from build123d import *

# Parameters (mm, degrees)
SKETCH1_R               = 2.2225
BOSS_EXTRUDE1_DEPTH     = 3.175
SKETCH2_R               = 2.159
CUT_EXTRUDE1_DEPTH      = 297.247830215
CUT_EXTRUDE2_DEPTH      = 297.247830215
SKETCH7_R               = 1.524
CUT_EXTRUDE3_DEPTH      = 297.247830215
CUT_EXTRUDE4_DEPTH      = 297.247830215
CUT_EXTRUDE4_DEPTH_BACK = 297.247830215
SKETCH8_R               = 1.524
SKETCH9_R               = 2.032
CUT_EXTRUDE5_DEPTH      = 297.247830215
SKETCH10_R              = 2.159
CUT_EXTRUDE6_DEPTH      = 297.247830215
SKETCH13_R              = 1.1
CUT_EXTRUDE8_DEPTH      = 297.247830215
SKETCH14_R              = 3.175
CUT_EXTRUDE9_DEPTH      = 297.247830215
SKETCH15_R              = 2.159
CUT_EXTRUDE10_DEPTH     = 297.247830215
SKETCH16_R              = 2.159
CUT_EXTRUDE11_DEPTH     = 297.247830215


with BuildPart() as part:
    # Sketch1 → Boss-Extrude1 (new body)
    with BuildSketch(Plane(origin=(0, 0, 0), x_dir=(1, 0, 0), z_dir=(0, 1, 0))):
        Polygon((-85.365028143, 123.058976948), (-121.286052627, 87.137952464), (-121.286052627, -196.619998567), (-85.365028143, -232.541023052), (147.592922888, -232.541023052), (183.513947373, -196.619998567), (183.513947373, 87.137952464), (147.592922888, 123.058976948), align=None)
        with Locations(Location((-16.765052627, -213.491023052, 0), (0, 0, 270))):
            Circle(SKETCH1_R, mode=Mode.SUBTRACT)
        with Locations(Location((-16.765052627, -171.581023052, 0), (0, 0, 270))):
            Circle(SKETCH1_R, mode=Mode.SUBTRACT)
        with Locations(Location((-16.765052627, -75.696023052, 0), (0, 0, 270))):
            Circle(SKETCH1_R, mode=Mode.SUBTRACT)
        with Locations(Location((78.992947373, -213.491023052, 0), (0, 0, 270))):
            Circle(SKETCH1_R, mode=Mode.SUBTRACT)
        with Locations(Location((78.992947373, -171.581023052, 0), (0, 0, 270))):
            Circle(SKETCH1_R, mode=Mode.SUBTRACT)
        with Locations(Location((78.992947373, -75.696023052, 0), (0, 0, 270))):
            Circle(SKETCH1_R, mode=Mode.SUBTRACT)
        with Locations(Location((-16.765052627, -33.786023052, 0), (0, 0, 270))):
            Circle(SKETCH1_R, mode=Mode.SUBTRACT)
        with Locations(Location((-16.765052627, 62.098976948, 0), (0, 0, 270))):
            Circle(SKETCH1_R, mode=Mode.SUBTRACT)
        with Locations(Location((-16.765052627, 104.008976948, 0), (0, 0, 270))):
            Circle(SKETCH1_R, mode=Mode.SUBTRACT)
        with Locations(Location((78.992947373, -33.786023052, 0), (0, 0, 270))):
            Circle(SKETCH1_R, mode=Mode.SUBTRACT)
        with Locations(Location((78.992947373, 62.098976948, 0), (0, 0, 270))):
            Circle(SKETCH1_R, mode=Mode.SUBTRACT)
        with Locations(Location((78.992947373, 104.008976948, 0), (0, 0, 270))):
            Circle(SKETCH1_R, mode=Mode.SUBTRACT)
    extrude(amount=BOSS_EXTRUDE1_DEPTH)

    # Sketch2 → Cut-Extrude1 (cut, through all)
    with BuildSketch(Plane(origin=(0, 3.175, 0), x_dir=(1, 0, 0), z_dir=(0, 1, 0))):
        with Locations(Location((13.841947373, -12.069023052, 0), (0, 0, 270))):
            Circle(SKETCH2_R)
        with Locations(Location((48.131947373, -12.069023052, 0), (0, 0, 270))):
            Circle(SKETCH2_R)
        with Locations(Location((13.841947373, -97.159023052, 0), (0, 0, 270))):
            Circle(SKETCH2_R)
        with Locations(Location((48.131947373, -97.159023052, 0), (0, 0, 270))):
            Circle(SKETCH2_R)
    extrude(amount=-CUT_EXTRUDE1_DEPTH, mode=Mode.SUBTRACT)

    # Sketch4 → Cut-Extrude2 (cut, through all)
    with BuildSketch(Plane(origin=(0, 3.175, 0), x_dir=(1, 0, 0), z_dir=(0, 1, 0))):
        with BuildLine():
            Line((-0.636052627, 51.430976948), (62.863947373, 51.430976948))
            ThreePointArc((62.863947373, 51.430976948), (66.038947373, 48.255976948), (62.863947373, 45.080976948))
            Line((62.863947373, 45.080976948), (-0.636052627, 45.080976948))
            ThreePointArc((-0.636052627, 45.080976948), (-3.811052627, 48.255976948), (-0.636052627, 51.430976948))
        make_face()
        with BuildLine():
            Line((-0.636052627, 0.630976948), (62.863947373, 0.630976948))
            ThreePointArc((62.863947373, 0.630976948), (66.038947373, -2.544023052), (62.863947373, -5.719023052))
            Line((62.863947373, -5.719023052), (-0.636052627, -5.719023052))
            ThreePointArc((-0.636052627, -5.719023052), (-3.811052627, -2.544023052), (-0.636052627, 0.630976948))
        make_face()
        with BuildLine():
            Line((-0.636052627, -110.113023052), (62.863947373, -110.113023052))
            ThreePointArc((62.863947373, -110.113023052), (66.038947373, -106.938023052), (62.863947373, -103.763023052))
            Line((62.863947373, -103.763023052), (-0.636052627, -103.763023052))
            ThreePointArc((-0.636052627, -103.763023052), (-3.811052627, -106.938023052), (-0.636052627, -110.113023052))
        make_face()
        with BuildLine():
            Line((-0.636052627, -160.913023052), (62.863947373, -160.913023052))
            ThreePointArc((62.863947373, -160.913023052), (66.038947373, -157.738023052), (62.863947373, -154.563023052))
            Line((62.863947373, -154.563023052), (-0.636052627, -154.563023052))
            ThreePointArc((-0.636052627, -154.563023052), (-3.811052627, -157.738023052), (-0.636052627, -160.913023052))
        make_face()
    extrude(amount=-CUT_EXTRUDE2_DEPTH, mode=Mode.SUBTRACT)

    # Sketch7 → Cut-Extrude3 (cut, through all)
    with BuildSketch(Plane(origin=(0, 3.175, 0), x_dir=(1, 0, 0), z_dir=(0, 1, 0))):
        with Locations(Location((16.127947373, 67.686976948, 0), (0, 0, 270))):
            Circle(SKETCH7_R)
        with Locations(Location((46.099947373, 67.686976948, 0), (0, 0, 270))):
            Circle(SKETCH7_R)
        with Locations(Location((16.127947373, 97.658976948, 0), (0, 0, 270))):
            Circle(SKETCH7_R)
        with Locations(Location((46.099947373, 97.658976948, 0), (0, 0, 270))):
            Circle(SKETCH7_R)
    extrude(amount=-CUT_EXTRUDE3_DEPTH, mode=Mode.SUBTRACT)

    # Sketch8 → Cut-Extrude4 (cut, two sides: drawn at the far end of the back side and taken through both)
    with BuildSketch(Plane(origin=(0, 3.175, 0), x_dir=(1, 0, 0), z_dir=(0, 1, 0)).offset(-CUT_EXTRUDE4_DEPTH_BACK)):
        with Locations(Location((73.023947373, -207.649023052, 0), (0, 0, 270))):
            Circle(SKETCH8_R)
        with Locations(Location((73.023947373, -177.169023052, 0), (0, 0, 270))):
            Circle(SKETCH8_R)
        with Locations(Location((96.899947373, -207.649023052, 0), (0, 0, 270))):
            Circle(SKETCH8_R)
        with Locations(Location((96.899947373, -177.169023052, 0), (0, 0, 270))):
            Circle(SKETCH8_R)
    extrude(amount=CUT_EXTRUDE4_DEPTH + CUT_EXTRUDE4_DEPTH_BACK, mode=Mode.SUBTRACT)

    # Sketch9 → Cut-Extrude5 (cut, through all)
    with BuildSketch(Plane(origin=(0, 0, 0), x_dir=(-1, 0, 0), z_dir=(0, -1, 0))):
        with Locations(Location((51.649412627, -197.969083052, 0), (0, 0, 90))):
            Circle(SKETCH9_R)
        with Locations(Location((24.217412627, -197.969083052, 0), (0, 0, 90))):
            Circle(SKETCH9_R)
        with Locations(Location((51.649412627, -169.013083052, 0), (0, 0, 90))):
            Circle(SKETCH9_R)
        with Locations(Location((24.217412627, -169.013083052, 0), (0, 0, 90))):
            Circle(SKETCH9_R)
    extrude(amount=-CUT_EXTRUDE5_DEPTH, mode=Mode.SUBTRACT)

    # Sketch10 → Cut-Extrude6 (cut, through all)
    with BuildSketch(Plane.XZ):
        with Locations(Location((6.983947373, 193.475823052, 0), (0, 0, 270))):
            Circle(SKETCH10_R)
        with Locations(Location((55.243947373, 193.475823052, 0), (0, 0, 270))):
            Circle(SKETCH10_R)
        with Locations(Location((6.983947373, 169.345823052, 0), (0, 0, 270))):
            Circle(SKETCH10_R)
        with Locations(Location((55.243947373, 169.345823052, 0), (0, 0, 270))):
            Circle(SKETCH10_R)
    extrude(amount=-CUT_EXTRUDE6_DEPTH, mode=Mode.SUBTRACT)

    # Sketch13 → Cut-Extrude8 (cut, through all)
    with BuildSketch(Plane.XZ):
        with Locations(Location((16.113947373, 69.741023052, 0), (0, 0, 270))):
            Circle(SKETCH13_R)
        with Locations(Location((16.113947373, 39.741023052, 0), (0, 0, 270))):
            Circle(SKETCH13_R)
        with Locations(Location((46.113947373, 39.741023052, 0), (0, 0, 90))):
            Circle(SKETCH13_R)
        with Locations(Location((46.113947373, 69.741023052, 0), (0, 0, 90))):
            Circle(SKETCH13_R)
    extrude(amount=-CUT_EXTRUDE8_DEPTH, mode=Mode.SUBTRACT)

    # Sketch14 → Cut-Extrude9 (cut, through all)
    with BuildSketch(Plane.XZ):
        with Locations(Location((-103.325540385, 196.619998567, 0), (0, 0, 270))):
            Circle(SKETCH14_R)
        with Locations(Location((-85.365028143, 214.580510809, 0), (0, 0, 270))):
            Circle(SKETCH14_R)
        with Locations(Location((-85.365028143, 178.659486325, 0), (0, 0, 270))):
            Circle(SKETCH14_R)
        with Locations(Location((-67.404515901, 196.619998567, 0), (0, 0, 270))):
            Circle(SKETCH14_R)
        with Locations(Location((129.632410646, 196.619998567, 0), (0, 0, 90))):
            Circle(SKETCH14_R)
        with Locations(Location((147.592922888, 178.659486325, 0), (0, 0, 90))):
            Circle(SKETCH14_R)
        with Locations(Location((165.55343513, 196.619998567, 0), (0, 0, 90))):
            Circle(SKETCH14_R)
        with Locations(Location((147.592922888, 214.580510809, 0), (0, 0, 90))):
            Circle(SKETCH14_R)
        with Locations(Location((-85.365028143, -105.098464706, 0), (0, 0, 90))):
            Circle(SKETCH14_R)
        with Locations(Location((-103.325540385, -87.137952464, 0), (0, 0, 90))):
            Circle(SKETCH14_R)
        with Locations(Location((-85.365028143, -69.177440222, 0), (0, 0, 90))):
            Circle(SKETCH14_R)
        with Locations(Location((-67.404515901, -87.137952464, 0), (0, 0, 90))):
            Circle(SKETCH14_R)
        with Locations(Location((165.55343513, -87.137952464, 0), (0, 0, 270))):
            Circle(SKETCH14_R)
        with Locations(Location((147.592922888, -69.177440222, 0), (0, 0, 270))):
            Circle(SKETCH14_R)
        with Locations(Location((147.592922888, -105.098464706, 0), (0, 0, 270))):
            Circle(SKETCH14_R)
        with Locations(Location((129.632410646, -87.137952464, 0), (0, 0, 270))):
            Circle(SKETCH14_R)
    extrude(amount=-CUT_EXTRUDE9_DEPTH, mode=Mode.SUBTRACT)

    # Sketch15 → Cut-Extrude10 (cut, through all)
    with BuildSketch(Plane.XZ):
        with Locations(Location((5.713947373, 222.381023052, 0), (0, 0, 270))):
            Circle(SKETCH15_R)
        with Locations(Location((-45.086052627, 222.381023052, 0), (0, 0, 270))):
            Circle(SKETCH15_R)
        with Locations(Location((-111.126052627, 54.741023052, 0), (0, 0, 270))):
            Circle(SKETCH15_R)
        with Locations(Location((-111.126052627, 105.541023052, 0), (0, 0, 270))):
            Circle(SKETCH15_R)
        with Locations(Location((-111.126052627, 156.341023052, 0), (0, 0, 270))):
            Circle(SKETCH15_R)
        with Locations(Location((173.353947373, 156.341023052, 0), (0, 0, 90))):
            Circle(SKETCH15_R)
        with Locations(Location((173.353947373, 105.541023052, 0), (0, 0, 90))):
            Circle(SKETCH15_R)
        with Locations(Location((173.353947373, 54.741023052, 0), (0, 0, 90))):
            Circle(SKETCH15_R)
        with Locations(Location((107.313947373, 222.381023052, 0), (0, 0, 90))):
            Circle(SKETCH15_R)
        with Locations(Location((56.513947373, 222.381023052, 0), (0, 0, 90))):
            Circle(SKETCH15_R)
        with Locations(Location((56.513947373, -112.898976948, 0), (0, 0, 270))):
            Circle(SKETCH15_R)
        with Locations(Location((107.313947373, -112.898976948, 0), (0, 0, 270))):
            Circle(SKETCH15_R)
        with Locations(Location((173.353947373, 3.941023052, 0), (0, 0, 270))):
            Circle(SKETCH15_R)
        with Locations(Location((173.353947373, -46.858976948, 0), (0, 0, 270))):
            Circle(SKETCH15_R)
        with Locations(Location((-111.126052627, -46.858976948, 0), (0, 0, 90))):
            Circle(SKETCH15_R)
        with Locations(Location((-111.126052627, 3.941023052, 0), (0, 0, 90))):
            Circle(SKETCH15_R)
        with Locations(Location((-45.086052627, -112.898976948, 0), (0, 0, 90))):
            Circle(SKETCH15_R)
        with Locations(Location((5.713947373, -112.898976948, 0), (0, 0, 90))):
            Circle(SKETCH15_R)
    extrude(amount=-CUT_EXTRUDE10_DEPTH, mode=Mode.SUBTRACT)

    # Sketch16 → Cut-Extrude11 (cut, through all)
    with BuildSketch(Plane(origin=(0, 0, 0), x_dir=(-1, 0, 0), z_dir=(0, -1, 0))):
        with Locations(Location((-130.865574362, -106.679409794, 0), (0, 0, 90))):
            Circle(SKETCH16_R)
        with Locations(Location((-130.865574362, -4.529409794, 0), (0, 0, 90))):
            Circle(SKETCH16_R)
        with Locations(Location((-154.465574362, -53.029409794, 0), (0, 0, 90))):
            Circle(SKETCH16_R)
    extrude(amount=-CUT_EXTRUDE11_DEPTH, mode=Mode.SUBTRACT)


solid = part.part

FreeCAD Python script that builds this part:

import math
import FreeCAD as App
import Part
import Sketcher
from FreeCAD import Vector
Q = App.Units.Quantity


def add_polygon(sketch, points):
    """Adds a closed chain of lines whose ends are joined by coincident constraints."""
    first, n = sketch.GeometryCount, len(points)
    for a, b in zip(points, points[1:] + points[:1]):
        sketch.addGeometry(Part.LineSegment(App.Vector(*a, 0), App.Vector(*b, 0)), False)
    for i in range(n):
        sketch.addConstraint(Sketcher.Constraint("Coincident", first + i, 2, first + (i + 1) % n, 1))

doc = App.newDocument("Part")
params = doc.addObject("Spreadsheet::Sheet", "Params")
for row, (alias, value) in enumerate([
    ("sketch1_length", "2 in"),
    ("sketch1_diameter", "0.175 in"),
    ("pad1_length", "0.125 in"),
    ("sketch2_diameter", "0.17 in"),
    ("sketch3_width", "2.5 in"),
    ("sketch3_radius", "0.125 in"),
    ("sketch4_diameter", "0.12 in"),
    ("sketch5_diameter", "0.12 in"),
    ("sketch6_diameter", "0.16 in"),
    ("sketch7_diameter", "0.17 in"),
    ("sketch9_diameter", "0.25 in"),
    ("sketch10_diameter", "0.17 in"),
    ("sketch11_diameter", "0.17 in"),
], start=1):
    params.set(f"A{row}", alias)
    params.set(f"B{row}", "=" + value)
    params.setAlias(f"B{row}", alias)

body = doc.addObject("PartDesign::Body", "Body")

# Sketch on XZ plane
sketch1 = doc.addObject("Sketcher::SketchObject", "Sketch")
body.addObject(sketch1)
sketch1.AttachmentSupport = (doc.XZ_Plane, [""])
sketch1.MapMode = "FlatFace"
add_polygon(sketch1, [(-85.4, -123.1), (-121.3, -87.1), (-121.3, 196.6), (-85.4, 232.5), (147.6, 232.5), (183.5, 196.6), (183.5, -87.1), (147.6, -123.1)])  # lines 0-7
sketch1.addGeometry(Part.Circle(Vector(-16.8, 213.5, 0), Vector(0, 0, 1), 2.2), False)  # 8
sketch1.addGeometry(Part.Circle(Vector(-16.8, 171.6, 0), Vector(0, 0, 1), 2.2), False)  # 9
sketch1.addGeometry(Part.Circle(Vector(-16.8, 75.7, 0), Vector(0, 0, 1), 2.2), False)  # 10
sketch1.addGeometry(Part.Circle(Vector(79, 213.5, 0), Vector(0, 0, 1), 2.2), False)  # 11
sketch1.addGeometry(Part.Circle(Vector(79, 171.6, 0), Vector(0, 0, 1), 2.2), False)  # 12
sketch1.addGeometry(Part.Circle(Vector(79, 75.7, 0), Vector(0, 0, 1), 2.2), False)  # 13
sketch1.addGeometry(Part.Circle(Vector(-16.8, 33.8, 0), Vector(0, 0, 1), 2.2), False)  # 14
sketch1.addGeometry(Part.Circle(Vector(-16.8, -62.1, 0), Vector(0, 0, 1), 2.2), False)  # 15
sketch1.addGeometry(Part.Circle(Vector(-16.8, -104, 0), Vector(0, 0, 1), 2.2), False)  # 16
sketch1.addGeometry(Part.Circle(Vector(79, 33.8, 0), Vector(0, 0, 1), 2.2), False)  # 17
sketch1.addGeometry(Part.Circle(Vector(79, -62.1, 0), Vector(0, 0, 1), 2.2), False)  # 18
sketch1.addGeometry(Part.Circle(Vector(79, -104, 0), Vector(0, 0, 1), 2.2), False)  # 19
sketch1.addConstraint([
    Sketcher.Constraint("Vertical", 1),
    Sketcher.Constraint("Horizontal", 3),
    Sketcher.Constraint("Vertical", 5),
    Sketcher.Constraint("Horizontal", 7),
    Sketcher.Constraint("Equal", 8, 9),
    Sketcher.Constraint("Equal", 9, 10),
    Sketcher.Constraint("Equal", 10, 11),
    Sketcher.Constraint("Equal", 11, 12),
    Sketcher.Constraint("Equal", 12, 13),
    Sketcher.Constraint("Equal", 13, 14),
    Sketcher.Constraint("Equal", 14, 15),
    Sketcher.Constraint("Equal", 15, 16),
    Sketcher.Constraint("Equal", 16, 17),
    Sketcher.Constraint("Equal", 17, 18),
    Sketcher.Constraint("Equal", 18, 19),
    Sketcher.Constraint("Perpendicular", 0, 2),
    Sketcher.Constraint("Perpendicular", 2, 4),
    Sketcher.Constraint("Perpendicular", 4, 6),
    Sketcher.Constraint("Horizontal", 8, 3, 11, 3),
    Sketcher.Constraint("Horizontal", 9, 3, 12, 3),
    Sketcher.Constraint("Horizontal", 10, 3, 13, 3),
    Sketcher.Constraint("Horizontal", 14, 3, 17, 3),
    Sketcher.Constraint("Horizontal", 15, 3, 18, 3),
    Sketcher.Constraint("Horizontal", 16, 3, 19, 3),
    Sketcher.Constraint("Horizontal", 1, 2, 4, 2),
    Sketcher.Constraint("Horizontal", 0, 2, 5, 2),
    Sketcher.Constraint("Vertical", 8, 3, 9, 3),
    Sketcher.Constraint("Vertical", 9, 3, 10, 3),
    Sketcher.Constraint("Vertical", 11, 3, 12, 3),
    Sketcher.Constraint("Vertical", 12, 3, 13, 3),
    Sketcher.Constraint("Vertical", 10, 3, 14, 3),
    Sketcher.Constraint("Vertical", 14, 3, 15, 3),
    Sketcher.Constraint("Vertical", 15, 3, 16, 3),
    Sketcher.Constraint("Vertical", 13, 3, 17, 3),
    Sketcher.Constraint("Vertical", 17, 3, 18, 3),
    Sketcher.Constraint("Vertical", 18, 3, 19, 3),
    Sketcher.Constraint("Vertical", 3, 2, 6, 2),
    Sketcher.Constraint("Vertical", 2, 2, 7, 2),
    Sketcher.Constraint("Distance", 0, Q("2 in")),
    Sketcher.Constraint("Diameter", 8, Q("0.175 in")),
    Sketcher.Constraint("DistanceY", 15, 3, 9, 3, Q("9.2 in")),
    Sketcher.Constraint("DistanceY", 9, 3, 2, 2, Q("2.4 in")),
    Sketcher.Constraint("DistanceY", 6, 2, 18, 3, Q("2.4 in")),
    Sketcher.Constraint("DistanceY", 9, 3, 8, 3, Q("1.65 in")),
    Sketcher.Constraint("DistanceX", 8, 3, 11, 3, Q("3.77 in")),
    Sketcher.Constraint("DistanceY", 14, 3, 10, 3, Q("1.65 in")),
    Sketcher.Constraint("DistanceY", 16, 3, 15, 3, Q("1.65 in")),
    Sketcher.Constraint("DistanceY", 10, 3, 9, 3, Q("3.775 in")),
    Sketcher.Constraint("DistanceX", 0, 2, 16, 3, Q("4.115 in")),
    Sketcher.Constraint("DistanceX", 11, 3, 4, 2, Q("4.115 in")),
    Sketcher.Constraint("DistanceY", -1, 1, 1, 2, 196.619999),
    Sketcher.Constraint("DistanceX", 2, 2, -1, 1, 85.365028),
])
sketch1.setExpression("Constraints[46]", "Params.sketch1_length")
sketch1.setExpression("Constraints[47]", "Params.sketch1_diameter")
pad1 = doc.addObject("PartDesign::Pad", "Pad")
body.addObject(pad1)
pad1.Profile = sketch1
pad1.setExpression("Length", "Params.pad1_length")
pad1.Reversed = True

# Sketch on XZ plane
sketch2 = doc.addObject("Sketcher::SketchObject", "Sketch001")
body.addObject(sketch2)
sketch2.AttachmentSupport = (doc.XZ_Plane, [""])
sketch2.MapMode = "FlatFace"
sketch2.AttachmentOffset = App.Placement(Vector(0, 0, -0.125 * 25.4), App.Rotation())
sketch2.addGeometry([
    Part.Circle(Vector(13.8, 12.1, 0), Vector(0, 0, 1), 2.2),
    Part.Circle(Vector(48.1, 12.1, 0), Vector(0, 0, 1), 2.2),
    Part.Circle(Vector(13.8, 97.2, 0), Vector(0, 0, 1), 2.2),
    Part.Circle(Vector(48.1, 97.2, 0), Vector(0, 0, 1), 2.2),
], False)
sketch2.addConstraint([
    Sketcher.Constraint("Equal", 0, 1),
    Sketcher.Constraint("Equal", 1, 2),
    Sketcher.Constraint("Equal", 2, 3),
    Sketcher.Constraint("Horizontal", 0, 3, 1, 3),
    Sketcher.Constraint("Horizontal", 2, 3, 3, 3),
    Sketcher.Constraint("Vertical", 0, 3, 2, 3),
    Sketcher.Constraint("Vertical", 1, 3, 3, 3),
    Sketcher.Constraint("Diameter", 0, Q("0.17 in")),
    Sketcher.Constraint("DistanceX", 0, 3, 1, 3, Q("1.35 in")),
    Sketcher.Constraint("DistanceY", 0, 3, 2, 3, Q("3.35 in")),
    Sketcher.Constraint("DistanceX", -1, 1, 0, 3, 13.841947),
    Sketcher.Constraint("DistanceY", -1, 1, 0, 3, 12.069023),
])
sketch2.setExpression("Constraints[7]", "Params.sketch2_diameter")
pocket1 = doc.addObject("PartDesign::Pocket", "Pocket")
body.addObject(pocket1)
pocket1.Profile = sketch2
pocket1.Type = "ThroughAll"
pocket1.Reversed = True

# Sketch on XZ plane
sketch3 = doc.addObject("Sketcher::SketchObject", "Sketch002")
body.addObject(sketch3)
sketch3.AttachmentSupport = (doc.XZ_Plane, [""])
sketch3.MapMode = "FlatFace"
sketch3.AttachmentOffset = App.Placement(Vector(0, 0, -0.125 * 25.4), App.Rotation())
sketch3.addGeometry([
    Part.LineSegment(Vector(62.9, -51.4, 0), Vector(-0.6, -51.4, 0)),  # 0
    Part.ArcOfCircle(Part.Circle(Vector(-0.6, -48.3, 0), Vector(0, 0, 1), 3.2), math.radians(90), math.radians(270)),  # 1
    Part.LineSegment(Vector(-0.6, -45.1, 0), Vector(62.9, -45.1, 0)),  # 2
    Part.ArcOfCircle(Part.Circle(Vector(62.9, -48.3, 0), Vector(0, 0, 1), 3.2), math.radians(-90), math.radians(90)),  # 3
    Part.LineSegment(Vector(62.9, -0.6, 0), Vector(-0.6, -0.6, 0)),  # 4
    Part.ArcOfCircle(Part.Circle(Vector(-0.6, 2.5, 0), Vector(0, 0, 1), 3.2), math.radians(90), math.radians(270)),  # 5
    Part.LineSegment(Vector(-0.6, 5.7, 0), Vector(62.9, 5.7, 0)),  # 6
    Part.ArcOfCircle(Part.Circle(Vector(62.9, 2.5, 0), Vector(0, 0, 1), 3.2), math.radians(-90), math.radians(90)),  # 7
    Part.LineSegment(Vector(-0.6, 110.1, 0), Vector(62.9, 110.1, 0)),  # 8
    Part.ArcOfCircle(Part.Circle(Vector(62.9, 106.9, 0), Vector(0, 0, 1), 3.2), math.radians(-90), math.radians(90)),  # 9
    Part.LineSegment(Vector(62.9, 103.8, 0), Vector(-0.6, 103.8, 0)),  # 10
    Part.ArcOfCircle(Part.Circle(Vector(-0.6, 106.9, 0), Vector(0, 0, 1), 3.2), math.radians(90), math.radians(270)),  # 11
    Part.LineSegment(Vector(-0.6, 160.9, 0), Vector(62.9, 160.9, 0)),  # 12
    Part.ArcOfCircle(Part.Circle(Vector(62.9, 157.7, 0), Vector(0, 0, 1), 3.2), math.radians(-90), math.radians(90)),  # 13
    Part.LineSegment(Vector(62.9, 154.6, 0), Vector(-0.6, 154.6, 0)),  # 14
    Part.ArcOfCircle(Part.Circle(Vector(-0.6, 157.7, 0), Vector(0, 0, 1), 3.2), math.radians(90), math.radians(270)),  # 15
], False)
sketch3.addConstraint([
    Sketcher.Constraint("Tangent", 0, 2, 1, 2),
    Sketcher.Constraint("Tangent", 1, 1, 2, 1),
    Sketcher.Constraint("Tangent", 2, 2, 3, 2),
    Sketcher.Constraint("Tangent", 3, 1, 0, 1),
    Sketcher.Constraint("Tangent", 4, 2, 5, 2),
    Sketcher.Constraint("Tangent", 5, 1, 6, 1),
    Sketcher.Constraint("Tangent", 6, 2, 7, 2),
    Sketcher.Constraint("Tangent", 7, 1, 4, 1),
    Sketcher.Constraint("Tangent", 8, 2, 9, 2),
    Sketcher.Constraint("Tangent", 9, 1, 10, 1),
    Sketcher.Constraint("Tangent", 10, 2, 11, 2),
    Sketcher.Constraint("Tangent", 11, 1, 8, 1),
    Sketcher.Constraint("Tangent", 12, 2, 13, 2),
    Sketcher.Constraint("Tangent", 13, 1, 14, 1),
    Sketcher.Constraint("Tangent", 14, 2, 15, 2),
    Sketcher.Constraint("Tangent", 15, 1, 12, 1),
    Sketcher.Constraint("Horizontal", 0),
    Sketcher.Constraint("Horizontal", 2),
    Sketcher.Constraint("Horizontal", 4),
    Sketcher.Constraint("Horizontal", 6),
    Sketcher.Constraint("Horizontal", 8),
    Sketcher.Constraint("Horizontal", 10),
    Sketcher.Constraint("Horizontal", 12),
    Sketcher.Constraint("Horizontal", 14),
    Sketcher.Constraint("Equal", 3, 5),
    Sketcher.Constraint("Equal", 7, 9),
    Sketcher.Constraint("Equal", 11, 13),
    Sketcher.Constraint("Vertical", 1, 3, 5, 3),
    Sketcher.Constraint("Vertical", 3, 3, 7, 3),
    Sketcher.Constraint("Vertical", 7, 3, 9, 3),
    Sketcher.Constraint("Vertical", 5, 3, 11, 3),
    Sketcher.Constraint("Vertical", 9, 3, 13, 3),
    Sketcher.Constraint("Vertical", 11, 3, 15, 3),
    Sketcher.Constraint("DistanceX", 0, 2, 0, 1, Q("2.5 in")),
    Sketcher.Constraint("Radius", 1, Q("0.125 in")),
    Sketcher.Constraint("DistanceY", 1, 3, 5, 3, Q("2 in")),
    Sketcher.Constraint("DistanceY", 9, 3, 13, 3, Q("2 in")),
    Sketcher.Constraint("DistanceY", 7, 3, 9, 3, Q("4.11 in")),
    Sketcher.Constraint("DistanceX", 1, 3, -1, 1, 0.636053),
    Sketcher.Constraint("DistanceY", 1, 3, -1, 1, 48.255977),
])
sketch3.setExpression("Constraints[33]", "Params.sketch3_width")
sketch3.setExpression("Constraints[34]", "Params.sketch3_radius")
pocket2 = doc.addObject("PartDesign::Pocket", "Pocket001")
body.addObject(pocket2)
pocket2.Profile = sketch3
pocket2.Type = "ThroughAll"
pocket2.Reversed = True

# Sketch on XZ plane
sketch4 = doc.addObject("Sketcher::SketchObject", "Sketch003")
body.addObject(sketch4)
sketch4.AttachmentSupport = (doc.XZ_Plane, [""])
sketch4.MapMode = "FlatFace"
sketch4.AttachmentOffset = App.Placement(Vector(0, 0, -0.125 * 25.4), App.Rotation())
sketch4.addGeometry([
    Part.Circle(Vector(16.1, -67.7, 0), Vector(0, 0, 1), 1.5),
    Part.Circle(Vector(46.1, -67.7, 0), Vector(0, 0, 1), 1.5),
    Part.Circle(Vector(16.1, -97.7, 0), Vector(0, 0, 1), 1.5),
    Part.Circle(Vector(46.1, -97.7, 0), Vector(0, 0, 1), 1.5),
], False)
sketch4.addConstraint([
    Sketcher.Constraint("Equal", 0, 1),
    Sketcher.Constraint("Equal", 1, 2),
    Sketcher.Constraint("Equal", 2, 3),
    Sketcher.Constraint("Horizontal", 0, 3, 1, 3),
    Sketcher.Constraint("Horizontal", 2, 3, 3, 3),
    Sketcher.Constraint("Vertical", 0, 3, 2, 3),
    Sketcher.Constraint("Vertical", 1, 3, 3, 3),
    Sketcher.Constraint("Diameter", 0, Q("0.12 in")),
    Sketcher.Constraint("DistanceX", 0, 3, 1, 3, Q("1.18 in")),
    Sketcher.Constraint("DistanceY", 2, 3, 0, 3, Q("1.18 in")),
    Sketcher.Constraint("DistanceX", -1, 1, 0, 3, 16.127947),
    Sketcher.Constraint("DistanceY", 0, 3, -1, 1, 67.686977),
])
sketch4.setExpression("Constraints[7]", "Params.sketch4_diameter")
pocket3 = doc.addObject("PartDesign::Pocket", "Pocket002")
body.addObject(pocket3)
pocket3.Profile = sketch4
pocket3.Type = "ThroughAll"
pocket3.Reversed = True

# Sketch on XZ plane
sketch5 = doc.addObject("Sketcher::SketchObject", "Sketch004")
body.addObject(sketch5)
sketch5.AttachmentSupport = (doc.XZ_Plane, [""])
sketch5.MapMode = "FlatFace"
sketch5.AttachmentOffset = App.Placement(Vector(0, 0, -0.125 * 25.4), App.Rotation())
sketch5.addGeometry([
    Part.Circle(Vector(73, 207.6, 0), Vector(0, 0, 1), 1.5),
    Part.Circle(Vector(73, 177.2, 0), Vector(0, 0, 1), 1.5),
    Part.Circle(Vector(96.9, 207.6, 0), Vector(0, 0, 1), 1.5),
    Part.Circle(Vector(96.9, 177.2, 0), Vector(0, 0, 1), 1.5),
], False)
sketch5.addConstraint([
    Sketcher.Constraint("Equal", 0, 1),
    Sketcher.Constraint("Equal", 1, 2),
    Sketcher.Constraint("Equal", 2, 3),
    Sketcher.Constraint("Horizontal", 0, 3, 2, 3),
    Sketcher.Constraint("Horizontal", 1, 3, 3, 3),
    Sketcher.Constraint("Vertical", 0, 3, 1, 3),
    Sketcher.Constraint("Vertical", 2, 3, 3, 3),
    Sketcher.Constraint("Diameter", 0, Q("0.12 in")),
    Sketcher.Constraint("DistanceY", 1, 3, 0, 3, Q("1.2 in")),
    Sketcher.Constraint("DistanceX", 0, 3, 2, 3, Q("0.94 in")),
    Sketcher.Constraint("DistanceX", -1, 1, 0, 3, 73.023947),
    Sketcher.Constraint("DistanceY", -1, 1, 0, 3, 207.649023),
])
sketch5.setExpression("Constraints[7]", "Params.sketch5_diameter")
pocket4 = doc.addObject("PartDesign::Pocket", "Pocket003")
body.addObject(pocket4)
pocket4.Profile = sketch5
pocket4.Type = "ThroughAll"
pocket4.Midplane = True

# Sketch on XZ plane
sketch6 = doc.addObject("Sketcher::SketchObject", "Sketch005")
body.addObject(sketch6)
sketch6.AttachmentSupport = (doc.XZ_Plane, [""])
sketch6.MapMode = "FlatFace"
sketch6.addGeometry([
    Part.Circle(Vector(-51.6, 198, 0), Vector(0, 0, 1), 2),
    Part.Circle(Vector(-24.2, 198, 0), Vector(0, 0, 1), 2),
    Part.Circle(Vector(-51.6, 169, 0), Vector(0, 0, 1), 2),
    Part.Circle(Vector(-24.2, 169, 0), Vector(0, 0, 1), 2),
], False)
sketch6.addConstraint([
    Sketcher.Constraint("Equal", 0, 1),
    Sketcher.Constraint("Equal", 1, 2),
    Sketcher.Constraint("Equal", 2, 3),
    Sketcher.Constraint("Horizontal", 0, 3, 1, 3),
    Sketcher.Constraint("Horizontal", 2, 3, 3, 3),
    Sketcher.Constraint("Vertical", 0, 3, 2, 3),
    Sketcher.Constraint("Vertical", 1, 3, 3, 3),
    Sketcher.Constraint("Diameter", 0, Q("0.16 in")),
    Sketcher.Constraint("DistanceX", 0, 3, 1, 3, Q("1.08 in")),
    Sketcher.Constraint("DistanceY", 2, 3, 0, 3, Q("1.14 in")),
    Sketcher.Constraint("DistanceX", 0, 3, -1, 1, 51.649413),
    Sketcher.Constraint("DistanceY", -1, 1, 0, 3, 197.969083),
])
sketch6.setExpression("Constraints[7]", "Params.sketch6_diameter")
pocket5 = doc.addObject("PartDesign::Pocket", "Pocket004")
body.addObject(pocket5)
pocket5.Profile = sketch6
pocket5.Type = "ThroughAll"

# Sketch on XZ plane
sketch7 = doc.addObject("Sketcher::SketchObject", "Sketch006")
body.addObject(sketch7)
sketch7.AttachmentSupport = (doc.XZ_Plane, [""])
sketch7.MapMode = "FlatFace"
sketch7.addGeometry([
    Part.Circle(Vector(7, 193.5, 0), Vector(0, 0, 1), 2.2),
    Part.Circle(Vector(55.2, 193.5, 0), Vector(0, 0, 1), 2.2),
    Part.Circle(Vector(7, 169.3, 0), Vector(0, 0, 1), 2.2),
    Part.Circle(Vector(55.2, 169.3, 0), Vector(0, 0, 1), 2.2),
], False)
sketch7.addConstraint([
    Sketcher.Constraint("Equal", 0, 1),
    Sketcher.Constraint("Equal", 1, 2),
    Sketcher.Constraint("Equal", 2, 3),
    Sketcher.Constraint("Horizontal", 0, 3, 1, 3),
    Sketcher.Constraint("Horizontal", 2, 3, 3, 3),
    Sketcher.Constraint("Vertical", 0, 3, 2, 3),
    Sketcher.Constraint("Vertical", 1, 3, 3, 3),
    Sketcher.Constraint("Diameter", 0, Q("0.17 in")),
    Sketcher.Constraint("DistanceX", 0, 3, 1, 3, Q("1.9 in")),
    Sketcher.Constraint("DistanceY", 2, 3, 0, 3, Q("0.95 in")),
    Sketcher.Constraint("DistanceX", -1, 1, 0, 3, 6.983947),
    Sketcher.Constraint("DistanceY", -1, 1, 0, 3, 193.475823),
])
sketch7.setExpression("Constraints[7]", "Params.sketch7_diameter")
pocket6 = doc.addObject("PartDesign::Pocket", "Pocket005")
body.addObject(pocket6)
pocket6.Profile = sketch7
pocket6.Type = "ThroughAll"

# Sketch on XZ plane
sketch8 = doc.addObject("Sketcher::SketchObject", "Sketch007")
body.addObject(sketch8)
sketch8.AttachmentSupport = (doc.XZ_Plane, [""])
sketch8.MapMode = "FlatFace"
sketch8.addGeometry([
    Part.Circle(Vector(16.1, 69.7, 0), Vector(0, 0, 1), 1.1),
    Part.Circle(Vector(16.1, 39.7, 0), Vector(0, 0, 1), 1.1),
    Part.Circle(Vector(46.1, 39.7, 0), Vector(0, 0, 1), 1.1),
    Part.Circle(Vector(46.1, 69.7, 0), Vector(0, 0, 1), 1.1),
], False)
sketch8.addConstraint([
    Sketcher.Constraint("Equal", 0, 1),
    Sketcher.Constraint("Equal", 1, 2),
    Sketcher.Constraint("Equal", 2, 3),
    Sketcher.Constraint("Horizontal", 1, 3, 2, 3),
    Sketcher.Constraint("Horizontal", 0, 3, 3, 3),
    Sketcher.Constraint("Vertical", 0, 3, 1, 3),
    Sketcher.Constraint("Vertical", 2, 3, 3, 3),
    Sketcher.Constraint("Diameter", 0, 2.2),
    Sketcher.Constraint("DistanceY", 1, 3, 0, 3, 30.0),
    Sketcher.Constraint("DistanceX", 1, 3, 2, 3, 30.0),
    Sketcher.Constraint("DistanceX", -1, 1, 0, 3, 16.113947),
    Sketcher.Constraint("DistanceY", -1, 1, 0, 3, 69.741023),
])
pocket7 = doc.addObject("PartDesign::Pocket", "Pocket006")
body.addObject(pocket7)
pocket7.Profile = sketch8
pocket7.Type = "ThroughAll"

# Sketch on XZ plane
sketch9 = doc.addObject("Sketcher::SketchObject", "Sketch008")
body.addObject(sketch9)
sketch9.AttachmentSupport = (doc.XZ_Plane, [""])
sketch9.MapMode = "FlatFace"
sketch9.addGeometry([
    Part.Circle(Vector(-103.3, 196.6, 0), Vector(0, 0, 1), 3.2),  # 0
    Part.Circle(Vector(-85.4, 214.6, 0), Vector(0, 0, 1), 3.2),  # 1
    Part.Circle(Vector(-85.4, 178.7, 0), Vector(0, 0, 1), 3.2),  # 2
    Part.Circle(Vector(-67.4, 196.6, 0), Vector(0, 0, 1), 3.2),  # 3
    Part.Circle(Vector(129.6, 196.6, 0), Vector(0, 0, 1), 3.2),  # 4
    Part.Circle(Vector(147.6, 178.7, 0), Vector(0, 0, 1), 3.2),  # 5
    Part.Circle(Vector(165.6, 196.6, 0), Vector(0, 0, 1), 3.2),  # 6
    Part.Circle(Vector(147.6, 214.6, 0), Vector(0, 0, 1), 3.2),  # 7
    Part.Circle(Vector(-85.4, -105.1, 0), Vector(0, 0, 1), 3.2),  # 8
    Part.Circle(Vector(-103.3, -87.1, 0), Vector(0, 0, 1), 3.2),  # 9
    Part.Circle(Vector(-85.4, -69.2, 0), Vector(0, 0, 1), 3.2),  # 10
    Part.Circle(Vector(-67.4, -87.1, 0), Vector(0, 0, 1), 3.2),  # 11
    Part.Circle(Vector(165.6, -87.1, 0), Vector(0, 0, 1), 3.2),  # 12
    Part.Circle(Vector(147.6, -69.2, 0), Vector(0, 0, 1), 3.2),  # 13
    Part.Circle(Vector(147.6, -105.1, 0), Vector(0, 0, 1), 3.2),  # 14
    Part.Circle(Vector(129.6, -87.1, 0), Vector(0, 0, 1), 3.2),  # 15
], False)
sketch9.addConstraint([
    Sketcher.Constraint("Equal", 0, 1),
    Sketcher.Constraint("Equal", 1, 2),
    Sketcher.Constraint("Equal", 2, 3),
    Sketcher.Constraint("Equal", 3, 4),
    Sketcher.Constraint("Equal", 4, 5),
    Sketcher.Constraint("Equal", 5, 6),
    Sketcher.Constraint("Equal", 6, 7),
    Sketcher.Constraint("Equal", 7, 8),
    Sketcher.Constraint("Equal", 8, 9),
    Sketcher.Constraint("Equal", 9, 10),
    Sketcher.Constraint("Equal", 10, 11),
    Sketcher.Constraint("Equal", 11, 12),
    Sketcher.Constraint("Equal", 12, 13),
    Sketcher.Constraint("Equal", 13, 14),
    Sketcher.Constraint("Equal", 14, 15),
    Sketcher.Constraint("Horizontal", 0, 3, 3, 3),
    Sketcher.Constraint("Horizontal", 3, 3, 4, 3),
    Sketcher.Constraint("Horizontal", 2, 3, 5, 3),
    Sketcher.Constraint("Horizontal", 4, 3, 6, 3),
    Sketcher.Constraint("Horizontal", 1, 3, 7, 3),
    Sketcher.Constraint("Horizontal", 9, 3, 11, 3),
    Sketcher.Constraint("Horizontal", 11, 3, 12, 3),
    Sketcher.Constraint("Horizontal", 10, 3, 13, 3),
    Sketcher.Constraint("Horizontal", 8, 3, 14, 3),
    Sketcher.Constraint("Horizontal", 12, 3, 15, 3),
    Sketcher.Constraint("Vertical", 1, 3, 2, 3),
    Sketcher.Constraint("Vertical", 5, 3, 7, 3),
    Sketcher.Constraint("Vertical", 2, 3, 8, 3),
    Sketcher.Constraint("Vertical", 0, 3, 9, 3),
    Sketcher.Constraint("Vertical", 8, 3, 10, 3),
    Sketcher.Constraint("Vertical", 3, 3, 11, 3),
    Sketcher.Constraint("Vertical", 6, 3, 12, 3),
    Sketcher.Constraint("Vertical", 7, 3, 13, 3),
    Sketcher.Constraint("Vertical", 13, 3, 14, 3),
    Sketcher.Constraint("Vertical", 4, 3, 15, 3),
    Sketcher.Constraint("Diameter", 0, Q("0.25 in")),
    Sketcher.Constraint("DistanceY", -1, 1, 0, 3, 196.619999),
    Sketcher.Constraint("DistanceX", 0, 3, -1, 1, 103.32554),
    Sketcher.Constraint("DistanceX", 1, 3, -1, 1, 85.365028),
    Sketcher.Constraint("DistanceY", -1, 1, 1, 3, 214.580511),
    Sketcher.Constraint("DistanceX", -1, 1, 4, 3, 129.632411),
    Sketcher.Constraint("DistanceY", 10, 3, -1, 1, 69.17744),
    Sketcher.Constraint("DistanceX", 3, 3, 5, 3, 214.997439),
    Sketcher.Constraint("DistanceX", 2, 3, 5, 3, 232.957951),
    Sketcher.Constraint("DistanceX", 3, 3, 6, 3, 232.957951),
    Sketcher.Constraint("DistanceY", 8, 3, 2, 3, 283.757951),
    Sketcher.Constraint("DistanceY", 9, 3, 2, 3, 265.797439),
    Sketcher.Constraint("DistanceY", 9, 3, 0, 3, 283.757951),
])
sketch9.setExpression("Constraints[35]", "Params.sketch9_diameter")
pocket8 = doc.addObject("PartDesign::Pocket", "Pocket007")
body.addObject(pocket8)
pocket8.Profile = sketch9
pocket8.Type = "ThroughAll"

# Sketch on XZ plane
sketch10 = doc.addObject("Sketcher::SketchObject", "Sketch009")
body.addObject(sketch10)
sketch10.AttachmentSupport = (doc.XZ_Plane, [""])
sketch10.MapMode = "FlatFace"
sketch10.addGeometry([
    Part.Circle(Vector(5.7, 222.4, 0), Vector(0, 0, 1), 2.2),  # 0
    Part.Circle(Vector(-45.1, 222.4, 0), Vector(0, 0, 1), 2.2),  # 1
    Part.Circle(Vector(-111.1, 54.7, 0), Vector(0, 0, 1), 2.2),  # 2
    Part.Circle(Vector(-111.1, 105.5, 0), Vector(0, 0, 1), 2.2),  # 3
    Part.Circle(Vector(-111.1, 156.3, 0), Vector(0, 0, 1), 2.2),  # 4
    Part.Circle(Vector(173.4, 156.3, 0), Vector(0, 0, 1), 2.2),  # 5
    Part.Circle(Vector(173.4, 105.5, 0), Vector(0, 0, 1), 2.2),  # 6
    Part.Circle(Vector(173.4, 54.7, 0), Vector(0, 0, 1), 2.2),  # 7
    Part.Circle(Vector(107.3, 222.4, 0), Vector(0, 0, 1), 2.2),  # 8
    Part.Circle(Vector(56.5, 222.4, 0), Vector(0, 0, 1), 2.2),  # 9
    Part.Circle(Vector(56.5, -112.9, 0), Vector(0, 0, 1), 2.2),  # 10
    Part.Circle(Vector(107.3, -112.9, 0), Vector(0, 0, 1), 2.2),  # 11
    Part.Circle(Vector(173.4, 3.9, 0), Vector(0, 0, 1), 2.2),  # 12
    Part.Circle(Vector(173.4, -46.9, 0), Vector(0, 0, 1), 2.2),  # 13
    Part.Circle(Vector(-111.1, -46.9, 0), Vector(0, 0, 1), 2.2),  # 14
    Part.Circle(Vector(-111.1, 3.9, 0), Vector(0, 0, 1), 2.2),  # 15
    Part.Circle(Vector(-45.1, -112.9, 0), Vector(0, 0, 1), 2.2),  # 16
    Part.Circle(Vector(5.7, -112.9, 0), Vector(0, 0, 1), 2.2),  # 17
], False)
sketch10.addConstraint([
    Sketcher.Constraint("Equal", 0, 1),
    Sketcher.Constraint("Equal", 1, 2),
    Sketcher.Constraint("Equal", 2, 3),
    Sketcher.Constraint("Equal", 3, 4),
    Sketcher.Constraint("Equal", 4, 5),
    Sketcher.Constraint("Equal", 5, 6),
    Sketcher.Constraint("Equal", 6, 7),
    Sketcher.Constraint("Equal", 7, 8),
    Sketcher.Constraint("Equal", 8, 9),
    Sketcher.Constraint("Equal", 9, 10),
    Sketcher.Constraint("Equal", 10, 11),
    Sketcher.Constraint("Equal", 11, 12),
    Sketcher.Constraint("Equal", 12, 13),
    Sketcher.Constraint("Equal", 13, 14),
    Sketcher.Constraint("Equal", 14, 15),
    Sketcher.Constraint("Equal", 15, 16),
    Sketcher.Constraint("Equal", 16, 17),
    Sketcher.Constraint("Horizontal", 0, 3, 1, 3),
    Sketcher.Constraint("Horizontal", 4, 3, 5, 3),
    Sketcher.Constraint("Horizontal", 3, 3, 6, 3),
    Sketcher.Constraint("Horizontal", 2, 3, 7, 3),
    Sketcher.Constraint("Horizontal", 1, 3, 8, 3),
    Sketcher.Constraint("Horizontal", 8, 3, 9, 3),
    Sketcher.Constraint("Horizontal", 10, 3, 11, 3),
    Sketcher.Constraint("Horizontal", 13, 3, 14, 3),
    Sketcher.Constraint("Horizontal", 12, 3, 15, 3),
    Sketcher.Constraint("Horizontal", 11, 3, 16, 3),
    Sketcher.Constraint("Horizontal", 16, 3, 17, 3),
    Sketcher.Constraint("Vertical", 2, 3, 3, 3),
    Sketcher.Constraint("Vertical", 3, 3, 4, 3),
    Sketcher.Constraint("Vertical", 5, 3, 6, 3),
    Sketcher.Constraint("Vertical", 6, 3, 7, 3),
    Sketcher.Constraint("Vertical", 9, 3, 10, 3),
    Sketcher.Constraint("Vertical", 8, 3, 11, 3),
    Sketcher.Constraint("Vertical", 7, 3, 12, 3),
    Sketcher.Constraint("Vertical", 12, 3, 13, 3),
    Sketcher.Constraint("Vertical", 4, 3, 14, 3),
    Sketcher.Constraint("Vertical", 14, 3, 15, 3),
    Sketcher.Constraint("Vertical", 1, 3, 16, 3),
    Sketcher.Constraint("Vertical", 0, 3, 17, 3),
    Sketcher.Constraint("Diameter", 0, Q("0.17 in")),
    Sketcher.Constraint("DistanceX", 1, 3, 0, 3, Q("2 in")),
    Sketcher.Constraint("DistanceY", 2, 3, 3, 3, Q("2 in")),
    Sketcher.Constraint("DistanceY", 3, 3, 4, 3, Q("2 in")),
    Sketcher.Constraint("DistanceX", 0, 3, 8, 3, Q("4 in")),
    Sketcher.Constraint("DistanceX", 0, 3, 9, 3, Q("2 in")),
    Sketcher.Constraint("DistanceY", 12, 3, 7, 3, Q("2 in")),
    Sketcher.Constraint("DistanceY", 13, 3, 12, 3, Q("2 in")),
    Sketcher.Constraint("DistanceX", 2, 3, 1, 3, Q("2.6 in")),
    Sketcher.Constraint("DistanceY", 2, 3, 1, 3, Q("6.6 in")),
    Sketcher.Constraint("DistanceX", 0, 3, 5, 3, Q("6.6 in")),
    Sketcher.Constraint("DistanceY", 10, 3, 7, 3, Q("6.6 in")),
    Sketcher.Constraint("DistanceX", -1, 1, 0, 3, 5.713947),
    Sketcher.Constraint("DistanceY", -1, 1, 0, 3, 222.381023),
])
sketch10.setExpression("Constraints[40]", "Params.sketch10_diameter")
pocket9 = doc.addObject("PartDesign::Pocket", "Pocket008")
body.addObject(pocket9)
pocket9.Profile = sketch10
pocket9.Type = "ThroughAll"

# Sketch on XZ plane
sketch11 = doc.addObject("Sketcher::SketchObject", "Sketch010")
body.addObject(sketch11)
sketch11.AttachmentSupport = (doc.XZ_Plane, [""])
sketch11.MapMode = "FlatFace"
sketch11.addGeometry([
    Part.Circle(Vector(130.9, 106.7, 0), Vector(0, 0, 1), 2.2),
    Part.Circle(Vector(130.9, 4.5, 0), Vector(0, 0, 1), 2.2),
    Part.Circle(Vector(154.5, 53, 0), Vector(0, 0, 1), 2.2),
], False)
sketch11.addConstraint([
    Sketcher.Constraint("Equal", 0, 1),
    Sketcher.Constraint("Equal", 1, 2),
    Sketcher.Constraint("Vertical", 0, 3, 1, 3),
    Sketcher.Constraint("Diameter", 0, Q("0.17 in")),
    Sketcher.Constraint("DistanceY", 1, 3, 0, 3, 102.15),
    Sketcher.Constraint("DistanceX", 1, 3, 2, 3, 23.6),
    Sketcher.Constraint("DistanceY", 1, 3, 2, 3, 48.5),
    Sketcher.Constraint("DistanceY", -1, 1, 0, 3, 106.67941),
    Sketcher.Constraint("DistanceX", -1, 1, 0, 3, 130.865574),
])
sketch11.setExpression("Constraints[3]", "Params.sketch11_diameter")
pocket10 = doc.addObject("PartDesign::Pocket", "Pocket009")
body.addObject(pocket10)
pocket10.Profile = sketch11
pocket10.Type = "ThroughAll"

doc.recompute()
